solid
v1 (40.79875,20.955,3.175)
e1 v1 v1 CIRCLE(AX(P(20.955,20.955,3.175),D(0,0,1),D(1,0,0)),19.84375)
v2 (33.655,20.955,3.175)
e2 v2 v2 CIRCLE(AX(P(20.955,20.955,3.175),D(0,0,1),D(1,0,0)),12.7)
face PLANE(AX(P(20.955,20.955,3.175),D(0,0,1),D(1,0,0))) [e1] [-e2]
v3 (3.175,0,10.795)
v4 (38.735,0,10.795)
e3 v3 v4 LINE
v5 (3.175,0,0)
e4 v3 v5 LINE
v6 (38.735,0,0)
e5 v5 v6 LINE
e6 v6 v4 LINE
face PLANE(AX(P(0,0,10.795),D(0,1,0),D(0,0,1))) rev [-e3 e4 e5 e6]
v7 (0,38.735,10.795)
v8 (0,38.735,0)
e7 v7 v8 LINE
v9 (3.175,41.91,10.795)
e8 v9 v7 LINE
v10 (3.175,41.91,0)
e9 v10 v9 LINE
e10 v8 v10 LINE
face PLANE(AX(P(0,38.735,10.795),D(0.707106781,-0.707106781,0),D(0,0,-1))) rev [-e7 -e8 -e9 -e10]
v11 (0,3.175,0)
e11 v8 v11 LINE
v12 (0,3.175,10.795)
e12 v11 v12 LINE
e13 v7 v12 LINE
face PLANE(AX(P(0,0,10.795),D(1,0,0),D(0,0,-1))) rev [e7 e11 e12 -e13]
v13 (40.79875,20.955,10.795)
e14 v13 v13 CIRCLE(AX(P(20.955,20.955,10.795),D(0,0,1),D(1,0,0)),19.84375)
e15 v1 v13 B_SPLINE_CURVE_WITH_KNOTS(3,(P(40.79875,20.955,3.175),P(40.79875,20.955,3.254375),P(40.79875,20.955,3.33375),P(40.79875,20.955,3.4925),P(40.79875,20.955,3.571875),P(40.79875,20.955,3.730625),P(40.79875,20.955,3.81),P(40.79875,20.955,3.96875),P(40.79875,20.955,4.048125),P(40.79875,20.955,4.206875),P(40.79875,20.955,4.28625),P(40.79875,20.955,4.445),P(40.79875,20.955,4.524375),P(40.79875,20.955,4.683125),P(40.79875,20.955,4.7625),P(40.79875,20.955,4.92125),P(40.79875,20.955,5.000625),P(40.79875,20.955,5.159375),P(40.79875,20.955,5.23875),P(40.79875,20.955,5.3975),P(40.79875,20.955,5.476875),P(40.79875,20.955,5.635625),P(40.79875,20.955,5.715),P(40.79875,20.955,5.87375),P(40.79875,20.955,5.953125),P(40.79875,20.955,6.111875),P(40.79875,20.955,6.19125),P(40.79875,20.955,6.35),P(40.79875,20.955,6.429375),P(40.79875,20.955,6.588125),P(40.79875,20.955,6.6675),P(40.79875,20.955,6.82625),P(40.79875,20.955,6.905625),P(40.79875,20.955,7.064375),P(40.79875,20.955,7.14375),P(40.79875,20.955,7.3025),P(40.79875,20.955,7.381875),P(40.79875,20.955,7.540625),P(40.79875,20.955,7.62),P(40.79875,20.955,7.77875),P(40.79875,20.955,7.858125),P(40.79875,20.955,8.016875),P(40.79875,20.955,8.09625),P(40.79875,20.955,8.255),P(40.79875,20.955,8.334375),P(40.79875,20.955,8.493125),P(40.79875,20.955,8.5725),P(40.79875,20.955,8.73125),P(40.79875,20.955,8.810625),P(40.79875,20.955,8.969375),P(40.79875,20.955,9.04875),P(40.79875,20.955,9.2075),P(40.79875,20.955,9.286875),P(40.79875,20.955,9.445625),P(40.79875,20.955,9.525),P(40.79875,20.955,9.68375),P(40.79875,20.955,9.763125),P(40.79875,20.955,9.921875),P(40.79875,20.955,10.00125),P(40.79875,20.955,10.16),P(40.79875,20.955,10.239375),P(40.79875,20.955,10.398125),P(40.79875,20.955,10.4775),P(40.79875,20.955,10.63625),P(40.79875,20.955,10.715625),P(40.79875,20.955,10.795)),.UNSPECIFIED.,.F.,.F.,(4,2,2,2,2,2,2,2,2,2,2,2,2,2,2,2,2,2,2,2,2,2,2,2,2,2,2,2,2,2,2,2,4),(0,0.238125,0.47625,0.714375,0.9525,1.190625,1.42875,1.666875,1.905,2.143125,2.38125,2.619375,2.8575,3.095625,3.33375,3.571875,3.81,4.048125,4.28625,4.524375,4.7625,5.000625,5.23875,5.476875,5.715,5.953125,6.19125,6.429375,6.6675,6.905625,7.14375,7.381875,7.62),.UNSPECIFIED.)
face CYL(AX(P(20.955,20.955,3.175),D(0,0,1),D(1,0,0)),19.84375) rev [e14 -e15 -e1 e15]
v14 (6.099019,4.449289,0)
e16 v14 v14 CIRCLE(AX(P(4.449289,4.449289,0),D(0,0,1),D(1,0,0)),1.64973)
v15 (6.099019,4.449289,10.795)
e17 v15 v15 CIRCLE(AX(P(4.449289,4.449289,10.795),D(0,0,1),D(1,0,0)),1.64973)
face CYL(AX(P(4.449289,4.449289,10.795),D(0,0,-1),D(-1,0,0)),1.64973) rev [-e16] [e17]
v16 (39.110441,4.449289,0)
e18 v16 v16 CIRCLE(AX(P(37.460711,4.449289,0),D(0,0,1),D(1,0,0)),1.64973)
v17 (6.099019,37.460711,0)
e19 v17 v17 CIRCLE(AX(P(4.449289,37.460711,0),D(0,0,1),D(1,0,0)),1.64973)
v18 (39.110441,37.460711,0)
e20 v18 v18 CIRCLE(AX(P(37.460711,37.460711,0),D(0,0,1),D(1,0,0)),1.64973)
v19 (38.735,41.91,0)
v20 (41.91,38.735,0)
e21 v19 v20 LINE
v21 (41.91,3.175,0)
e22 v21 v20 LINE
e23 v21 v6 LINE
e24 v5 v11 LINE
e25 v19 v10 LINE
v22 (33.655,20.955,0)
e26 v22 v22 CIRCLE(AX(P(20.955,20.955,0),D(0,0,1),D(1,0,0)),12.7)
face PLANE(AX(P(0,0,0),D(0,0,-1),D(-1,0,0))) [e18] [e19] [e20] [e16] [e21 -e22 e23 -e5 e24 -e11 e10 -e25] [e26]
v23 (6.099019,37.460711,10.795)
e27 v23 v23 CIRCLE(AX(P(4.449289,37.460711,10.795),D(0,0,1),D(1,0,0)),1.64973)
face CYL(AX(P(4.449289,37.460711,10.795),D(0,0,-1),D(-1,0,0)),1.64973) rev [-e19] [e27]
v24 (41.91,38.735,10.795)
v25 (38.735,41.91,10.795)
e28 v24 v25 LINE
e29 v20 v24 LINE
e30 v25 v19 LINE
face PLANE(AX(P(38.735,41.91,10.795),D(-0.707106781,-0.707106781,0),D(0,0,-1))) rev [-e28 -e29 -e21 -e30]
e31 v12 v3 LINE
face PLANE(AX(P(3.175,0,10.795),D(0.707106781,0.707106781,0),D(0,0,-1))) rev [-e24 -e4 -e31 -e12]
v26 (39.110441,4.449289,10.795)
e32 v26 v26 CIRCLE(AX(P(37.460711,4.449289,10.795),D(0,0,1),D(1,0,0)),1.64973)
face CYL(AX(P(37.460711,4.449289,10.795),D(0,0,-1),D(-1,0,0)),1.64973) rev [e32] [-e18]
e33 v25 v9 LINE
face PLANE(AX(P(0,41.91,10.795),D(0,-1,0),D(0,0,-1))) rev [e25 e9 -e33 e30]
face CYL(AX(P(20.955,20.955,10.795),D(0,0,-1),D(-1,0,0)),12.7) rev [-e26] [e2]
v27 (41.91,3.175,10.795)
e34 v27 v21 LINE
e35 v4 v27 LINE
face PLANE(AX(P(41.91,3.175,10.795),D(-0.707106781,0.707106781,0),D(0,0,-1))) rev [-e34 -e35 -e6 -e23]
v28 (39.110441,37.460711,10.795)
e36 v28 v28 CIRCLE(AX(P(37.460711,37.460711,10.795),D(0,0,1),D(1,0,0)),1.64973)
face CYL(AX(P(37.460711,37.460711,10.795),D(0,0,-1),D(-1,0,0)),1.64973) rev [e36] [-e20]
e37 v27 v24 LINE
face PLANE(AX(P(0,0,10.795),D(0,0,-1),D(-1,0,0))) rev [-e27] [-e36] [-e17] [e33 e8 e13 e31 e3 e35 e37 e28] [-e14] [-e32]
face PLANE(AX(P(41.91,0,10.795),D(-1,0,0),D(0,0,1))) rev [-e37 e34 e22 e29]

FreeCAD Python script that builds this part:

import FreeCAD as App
import Part
import Sketcher
from FreeCAD import Vector
Q = App.Units.Quantity


def edges_at(feature, points):
    """Names of the edges that pass closest to the given points."""
    edges = feature.Shape.Edges
    near = lambda p: min(range(len(edges)), key=lambda i: edges[i].distToShape(Part.Vertex(*p))[0])
    return sorted({f"Edge{near(p) + 1}" for p in points})


def add_polygon(sketch, points):
    """Adds a closed chain of lines whose ends are joined by coincident constraints."""
    first, n = sketch.GeometryCount, len(points)
    for a, b in zip(points, points[1:] + points[:1]):
        sketch.addGeometry(Part.LineSegment(App.Vector(*a, 0), App.Vector(*b, 0)), False)
    for i in range(n):
        sketch.addConstraint(Sketcher.Constraint("Coincident", first + i, 2, first + (i + 1) % n, 1))

doc = App.newDocument("Part")
params = doc.addObject("Spreadsheet::Sheet", "Params")
for row, (alias, value) in enumerate([
    ("sketch1_diameter", "1 in"),
    ("sketch1_width", "1.65 in"),
    ("pad1_length", "0.425 in"),
    ("sketch2_diameter", "1.5625 in"),
    ("pocket1_length", "0.3 in"),
    ("chamfer_size", "0.125 in"),
], start=1):
    params.set(f"A{row}", alias)
    params.set(f"B{row}", "=" + value)
    params.setAlias(f"B{row}", alias)

body = doc.addObject("PartDesign::Body", "Body")

# Sketch on XY plane
sketch1 = body.newObject("Sketcher::SketchObject", "Sketch")
sketch1.AttachmentSupport = (doc.getObject("XY_Plane"), [""])
sketch1.MapMode = "FlatFace"
add_polygon(sketch1, [(0, 41.91), (0, 0), (41.91, 0), (41.91, 41.91)])  # lines 0-3
sketch1.addGeometry(Part.Circle(Vector(4.449289, 4.449289, 0), Vector(0, 0, 1), 1.64973), False)  # 4
sketch1.addGeometry(Part.Circle(Vector(37.460711, 4.449289, 0), Vector(0, 0, 1), 1.64973), False)  # 5
sketch1.addGeometry(Part.Circle(Vector(4.449289, 37.460711, 0), Vector(0, 0, 1), 1.64973), False)  # 6
sketch1.addGeometry(Part.Circle(Vector(20.955, 20.955, 0), Vector(0, 0, 1), 12.7), False)  # 7
sketch1.addGeometry(Part.Circle(Vector(37.460711, 37.460711, 0), Vector(0, 0, 1), 1.64973), False)  # 8
sketch1.addConstraint(Sketcher.Constraint("Vertical", 0))
sketch1.addConstraint(Sketcher.Constraint("Horizontal", 1))
sketch1.addConstraint(Sketcher.Constraint("Vertical", 2))
sketch1.addConstraint(Sketcher.Constraint("Horizontal", 3))
sketch1.addConstraint(Sketcher.Constraint("Coincident", 0, 2, -1, 1))
sketch1.addConstraint(Sketcher.Constraint("Equal", 4, 5))
sketch1.addConstraint(Sketcher.Constraint("Equal", 5, 6))
sketch1.addConstraint(Sketcher.Constraint("Equal", 6, 8))
sketch1.addConstraint(Sketcher.Constraint("Horizontal", 4, 3, 5, 3))
sketch1.addConstraint(Sketcher.Constraint("Horizontal", 6, 3, 8, 3))
sketch1.addConstraint(Sketcher.Constraint("Vertical", 4, 3, 6, 3))
sketch1.addConstraint(Sketcher.Constraint("Vertical", 5, 3, 8, 3))
sketch1.addConstraint(Sketcher.Constraint("Equal", 3, 0))
sketch1.addConstraint(Sketcher.Constraint("Diameter", 7, Q("1 in")))
sketch1.addConstraint(Sketcher.Constraint("Diameter", 4, Q("0.1299 in")))
sketch1.addConstraint(Sketcher.Constraint("DistanceX", 1, 1, 1, 2, Q("1.65 in")))
sketch1.addConstraint(Sketcher.Constraint("DistanceX", -1, 1, 7, 3, Q("0.825 in")))
sketch1.addConstraint(Sketcher.Constraint("DistanceY", -1, 1, 7, 3, Q("0.825 in")))
sketch1.addConstraint(Sketcher.Constraint("DistanceX", -1, 1, 4, 3, Q("4.449289 mm")))
sketch1.addConstraint(Sketcher.Constraint("DistanceY", -1, 1, 4, 3, Q("4.449289 mm")))
sketch1.addConstraint(Sketcher.Constraint("DistanceX", -1, 1, 5, 3, Q("37.460711 mm")))
sketch1.addConstraint(Sketcher.Constraint("DistanceY", -1, 1, 6, 3, Q("37.460711 mm")))
sketch1.setExpression("Constraints[17]", "Params.sketch1_diameter")
sketch1.setExpression("Constraints[19]", "Params.sketch1_width")
pad1 = body.newObject("PartDesign::Pad", "Pad")
pad1.Profile = sketch1
pad1.setExpression("Length", "Params.pad1_length")

# Sketch on XY plane
sketch2 = body.newObject("Sketcher::SketchObject", "Sketch001")
sketch2.AttachmentSupport = (doc.getObject("XY_Plane"), [""])
sketch2.MapMode = "FlatFace"
sketch2.AttachmentOffset = App.Placement(Vector(0, 0, 0.425 * 25.4), App.Rotation())
sketch2.addGeometry(Part.Circle(Vector(20.955, 20.955, 0), Vector(0, 0, 1), 19.84375), False)
sketch2.addConstraint(Sketcher.Constraint("Diameter", 0, Q("1.5625 in")))
sketch2.addConstraint(Sketcher.Constraint("DistanceX", -1, 1, 0, 3, Q("0.825 in")))
sketch2.addConstraint(Sketcher.Constraint("DistanceY", -1, 1, 0, 3, Q("0.825 in")))
sketch2.setExpression("Constraints[0]", "Params.sketch2_diameter")
pocket1 = body.newObject("PartDesign::Pocket", "Pocket")
pocket1.Profile = sketch2
pocket1.setExpression("Length", "Params.pocket1_length")
doc.recompute()

chamfer = body.newObject("PartDesign::Chamfer", "Chamfer")
chamfer.Base = (pocket1, edges_at(pocket1, [
    (0, 41.91, 5.397),
    (41.91, 41.91, 5.397),
    (41.91, 0, 5.397),
    (0, 0, 5.397),
]))
chamfer.setExpression("Size", "Params.chamfer_size")

doc.recompute()
